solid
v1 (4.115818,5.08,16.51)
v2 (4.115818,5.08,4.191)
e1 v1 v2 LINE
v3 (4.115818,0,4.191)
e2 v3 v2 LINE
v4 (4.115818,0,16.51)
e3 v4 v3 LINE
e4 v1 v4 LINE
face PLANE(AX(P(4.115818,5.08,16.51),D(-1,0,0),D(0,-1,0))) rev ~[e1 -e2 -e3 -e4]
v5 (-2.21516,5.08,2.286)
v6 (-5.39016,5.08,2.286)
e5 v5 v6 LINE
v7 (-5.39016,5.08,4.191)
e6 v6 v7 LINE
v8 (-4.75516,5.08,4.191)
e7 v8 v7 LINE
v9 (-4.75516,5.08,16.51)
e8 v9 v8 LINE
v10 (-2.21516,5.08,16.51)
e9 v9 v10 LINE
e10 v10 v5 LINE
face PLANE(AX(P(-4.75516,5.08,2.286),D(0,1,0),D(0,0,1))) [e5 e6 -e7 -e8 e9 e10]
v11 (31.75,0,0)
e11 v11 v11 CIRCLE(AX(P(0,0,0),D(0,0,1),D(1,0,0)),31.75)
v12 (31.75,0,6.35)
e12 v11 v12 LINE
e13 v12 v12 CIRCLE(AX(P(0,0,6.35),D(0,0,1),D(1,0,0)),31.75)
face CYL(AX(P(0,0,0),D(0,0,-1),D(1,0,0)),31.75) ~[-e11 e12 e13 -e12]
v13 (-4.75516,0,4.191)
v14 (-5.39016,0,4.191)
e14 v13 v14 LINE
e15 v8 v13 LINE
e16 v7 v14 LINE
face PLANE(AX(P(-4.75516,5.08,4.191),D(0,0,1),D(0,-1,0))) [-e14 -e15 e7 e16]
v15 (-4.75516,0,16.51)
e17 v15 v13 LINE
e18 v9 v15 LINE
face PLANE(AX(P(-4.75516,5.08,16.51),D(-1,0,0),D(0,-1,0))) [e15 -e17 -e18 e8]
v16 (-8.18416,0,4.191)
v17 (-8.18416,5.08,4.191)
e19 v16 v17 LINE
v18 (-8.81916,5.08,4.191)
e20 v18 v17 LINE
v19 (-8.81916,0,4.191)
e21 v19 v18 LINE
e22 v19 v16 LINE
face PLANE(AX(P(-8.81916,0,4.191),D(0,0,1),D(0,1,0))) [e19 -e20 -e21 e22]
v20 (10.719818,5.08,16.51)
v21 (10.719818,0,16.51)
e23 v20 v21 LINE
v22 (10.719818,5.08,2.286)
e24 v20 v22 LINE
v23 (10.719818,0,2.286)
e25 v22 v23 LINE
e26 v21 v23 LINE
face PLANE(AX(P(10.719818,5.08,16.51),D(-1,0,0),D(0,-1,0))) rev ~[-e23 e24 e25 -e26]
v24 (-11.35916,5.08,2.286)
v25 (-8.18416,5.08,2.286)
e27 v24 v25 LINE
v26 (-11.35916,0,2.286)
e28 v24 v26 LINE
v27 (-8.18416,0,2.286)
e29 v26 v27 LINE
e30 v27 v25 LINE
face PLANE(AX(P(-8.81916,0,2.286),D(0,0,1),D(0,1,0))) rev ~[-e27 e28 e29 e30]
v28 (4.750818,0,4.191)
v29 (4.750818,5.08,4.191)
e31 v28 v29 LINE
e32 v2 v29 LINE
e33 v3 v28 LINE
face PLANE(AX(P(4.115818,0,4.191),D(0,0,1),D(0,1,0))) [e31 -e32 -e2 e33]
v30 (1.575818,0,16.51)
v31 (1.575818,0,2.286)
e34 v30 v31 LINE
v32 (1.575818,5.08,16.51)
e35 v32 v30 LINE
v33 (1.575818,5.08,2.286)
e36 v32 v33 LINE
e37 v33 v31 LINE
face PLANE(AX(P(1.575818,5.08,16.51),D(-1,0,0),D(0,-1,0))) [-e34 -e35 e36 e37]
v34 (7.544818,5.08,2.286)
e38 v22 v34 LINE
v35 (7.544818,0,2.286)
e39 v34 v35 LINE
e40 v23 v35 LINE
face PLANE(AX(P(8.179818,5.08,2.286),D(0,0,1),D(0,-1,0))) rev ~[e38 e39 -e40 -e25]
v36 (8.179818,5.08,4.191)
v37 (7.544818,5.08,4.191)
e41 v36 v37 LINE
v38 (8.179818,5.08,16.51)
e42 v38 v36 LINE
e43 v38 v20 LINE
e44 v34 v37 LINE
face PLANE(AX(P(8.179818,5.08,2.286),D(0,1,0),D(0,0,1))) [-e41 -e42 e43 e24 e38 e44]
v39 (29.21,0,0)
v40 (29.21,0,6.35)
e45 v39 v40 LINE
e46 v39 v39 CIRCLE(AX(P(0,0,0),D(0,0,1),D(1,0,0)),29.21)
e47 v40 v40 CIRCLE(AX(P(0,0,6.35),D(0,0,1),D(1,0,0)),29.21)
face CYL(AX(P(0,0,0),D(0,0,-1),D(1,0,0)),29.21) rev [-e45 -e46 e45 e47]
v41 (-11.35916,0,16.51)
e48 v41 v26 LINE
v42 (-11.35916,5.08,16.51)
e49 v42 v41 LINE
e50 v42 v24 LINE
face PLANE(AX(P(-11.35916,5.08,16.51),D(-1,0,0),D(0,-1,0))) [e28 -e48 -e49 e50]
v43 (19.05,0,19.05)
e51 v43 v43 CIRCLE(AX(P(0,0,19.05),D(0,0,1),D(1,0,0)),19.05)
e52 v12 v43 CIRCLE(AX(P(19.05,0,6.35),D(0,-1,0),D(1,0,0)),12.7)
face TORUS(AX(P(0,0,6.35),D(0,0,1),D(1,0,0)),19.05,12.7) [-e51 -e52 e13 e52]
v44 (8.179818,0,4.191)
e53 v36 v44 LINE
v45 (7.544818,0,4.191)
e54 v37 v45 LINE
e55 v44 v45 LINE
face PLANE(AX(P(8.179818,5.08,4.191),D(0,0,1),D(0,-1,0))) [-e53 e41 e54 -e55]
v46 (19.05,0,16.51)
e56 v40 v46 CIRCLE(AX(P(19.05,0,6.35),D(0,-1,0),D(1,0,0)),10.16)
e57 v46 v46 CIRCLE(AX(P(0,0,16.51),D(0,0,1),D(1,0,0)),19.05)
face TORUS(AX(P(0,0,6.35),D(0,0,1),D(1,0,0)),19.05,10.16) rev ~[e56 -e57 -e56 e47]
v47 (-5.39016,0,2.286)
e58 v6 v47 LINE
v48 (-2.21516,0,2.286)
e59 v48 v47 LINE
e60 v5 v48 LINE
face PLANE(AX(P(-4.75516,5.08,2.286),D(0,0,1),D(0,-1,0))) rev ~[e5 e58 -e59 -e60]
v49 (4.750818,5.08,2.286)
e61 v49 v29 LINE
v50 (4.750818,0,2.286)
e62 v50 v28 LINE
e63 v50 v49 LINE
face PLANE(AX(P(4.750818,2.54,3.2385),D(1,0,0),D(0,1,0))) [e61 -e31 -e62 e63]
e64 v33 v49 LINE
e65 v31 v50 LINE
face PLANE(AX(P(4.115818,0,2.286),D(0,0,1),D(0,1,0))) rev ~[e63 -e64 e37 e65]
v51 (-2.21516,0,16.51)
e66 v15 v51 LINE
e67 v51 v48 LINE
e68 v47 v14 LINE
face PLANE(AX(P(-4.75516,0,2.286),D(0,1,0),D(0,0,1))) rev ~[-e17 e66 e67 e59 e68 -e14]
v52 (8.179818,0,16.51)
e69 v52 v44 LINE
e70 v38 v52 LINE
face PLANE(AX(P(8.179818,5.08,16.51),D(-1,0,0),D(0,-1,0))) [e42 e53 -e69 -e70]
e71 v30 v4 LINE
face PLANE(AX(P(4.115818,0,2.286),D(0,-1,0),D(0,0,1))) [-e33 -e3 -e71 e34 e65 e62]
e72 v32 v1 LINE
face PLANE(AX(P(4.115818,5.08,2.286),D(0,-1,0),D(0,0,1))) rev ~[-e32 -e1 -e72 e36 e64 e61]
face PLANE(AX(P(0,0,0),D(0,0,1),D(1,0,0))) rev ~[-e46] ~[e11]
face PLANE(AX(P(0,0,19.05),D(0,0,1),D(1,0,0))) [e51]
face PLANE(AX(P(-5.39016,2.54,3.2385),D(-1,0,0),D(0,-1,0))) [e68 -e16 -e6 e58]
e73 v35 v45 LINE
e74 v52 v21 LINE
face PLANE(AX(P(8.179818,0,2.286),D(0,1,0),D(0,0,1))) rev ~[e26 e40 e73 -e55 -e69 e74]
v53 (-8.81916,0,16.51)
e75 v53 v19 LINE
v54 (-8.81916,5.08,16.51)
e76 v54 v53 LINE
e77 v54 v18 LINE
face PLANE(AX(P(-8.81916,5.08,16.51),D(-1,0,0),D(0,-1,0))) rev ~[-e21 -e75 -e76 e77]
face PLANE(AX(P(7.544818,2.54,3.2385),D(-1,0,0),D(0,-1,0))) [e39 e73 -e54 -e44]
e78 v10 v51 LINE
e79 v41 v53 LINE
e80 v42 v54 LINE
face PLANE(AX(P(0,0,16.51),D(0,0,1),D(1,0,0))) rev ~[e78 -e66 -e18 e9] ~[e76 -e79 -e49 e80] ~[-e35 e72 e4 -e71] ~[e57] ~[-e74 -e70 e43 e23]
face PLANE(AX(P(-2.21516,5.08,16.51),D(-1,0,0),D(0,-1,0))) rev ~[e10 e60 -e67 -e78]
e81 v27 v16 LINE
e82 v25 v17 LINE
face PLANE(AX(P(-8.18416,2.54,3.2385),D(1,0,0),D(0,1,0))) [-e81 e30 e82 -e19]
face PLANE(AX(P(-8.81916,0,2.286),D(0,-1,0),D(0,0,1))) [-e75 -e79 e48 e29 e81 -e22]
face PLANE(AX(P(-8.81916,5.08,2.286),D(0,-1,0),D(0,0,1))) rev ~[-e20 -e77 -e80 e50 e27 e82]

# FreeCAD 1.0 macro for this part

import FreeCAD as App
import Part
import Sketcher

V = App.Vector
Q = App.Units.Quantity


def edges_at(feature, points):
    """Names of the edges that pass closest to the given points."""
    edges = feature.Shape.Edges
    near = lambda p: min(range(len(edges)), key=lambda i: edges[i].distToShape(Part.Vertex(*p))[0])
    return sorted({f"Edge{near(p) + 1}" for p in points})


def faces_at(feature, points):
    """Names of the faces that lie closest to the given points."""
    faces = feature.Shape.Faces
    near = lambda p: min(range(len(faces)), key=lambda i: faces[i].distToShape(Part.Vertex(*p))[0])
    return sorted({f"Face{near(p) + 1}" for p in points})


def add_polygon(sketch, points):
    """Adds a closed chain of lines whose ends are joined by coincident constraints."""
    first, n = sketch.GeometryCount, len(points)
    for a, b in zip(points, points[1:] + points[:1]):
        sketch.addGeometry(Part.LineSegment(App.Vector(*a, 0), App.Vector(*b, 0)), False)
    for i in range(n):
        sketch.addConstraint(Sketcher.Constraint("Coincident", first + i, 2, first + (i + 1) % n, 1))

doc = App.newDocument("Part")
body = doc.addObject("PartDesign::Body", "Body")

# Sketch on XY plane
sketch1 = body.newObject("Sketcher::SketchObject", "Sketch")
sketch1.AttachmentSupport = (doc.getObject("XY_Plane"), [""])
sketch1.MapMode = "FlatFace"
sketch1.addGeometry(Part.Circle(V(0, 0, 0), V(0, 0, 1), 31.75), False)
sketch1.addConstraint([
    Sketcher.Constraint("Coincident", 0, 3, -1, 1),
    Sketcher.Constraint("Diameter", 0, Q("2.5 in")),
])
pad1 = body.newObject("PartDesign::Pad", "Pad")
pad1.Profile = sketch1
pad1.Length = Q("0.75 in")
doc.recompute()

fillet = body.newObject("PartDesign::Fillet", "Fillet")
fillet.Base = (pad1, edges_at(pad1, [(-31.75, 0, 19.05)]))
fillet.Radius = Q("0.5 in")
doc.recompute()

thickness = body.newObject("PartDesign::Thickness", "Thickness")
thickness.Base = (fillet, faces_at(fillet, [(0, 0, 0)]))
thickness.Value = Q("0.1 in")
thickness.Reversed = True
thickness.Join = "Arc"

# Sketch on XY plane
sketch2 = body.newObject("Sketcher::SketchObject", "Sketch001")
sketch2.AttachmentSupport = (doc.getObject("XY_Plane"), [""])
sketch2.MapMode = "FlatFace"
sketch2.AttachmentOffset = App.Placement(V(0, 0, 0.65 * 25.4), App.Rotation())
add_polygon(sketch2, [(8.179818, 0), (8.179818, 5.08), (10.719818, 5.08), (10.719818, 0)])  # lines 0-3
add_polygon(sketch2, [(1.575818, 0), (1.575818, 5.08), (4.115818, 5.08), (4.115818, 0)])  # lines 4-7
add_polygon(sketch2, [(-4.75516, 0), (-4.75516, 5.08), (-2.21516, 5.08), (-2.21516, 0)])  # lines 8-11
add_polygon(sketch2, [(-11.35916, 0), (-11.35916, 5.08), (-8.81916, 5.08), (-8.81916, 0)])  # lines 12-15
sketch2.addConstraint([
    Sketcher.Constraint("Vertical", 0),
    Sketcher.Constraint("Horizontal", 1),
    Sketcher.Constraint("Vertical", 2),
    Sketcher.Constraint("Horizontal", 3),
    Sketcher.Constraint("Vertical", 4),
    Sketcher.Constraint("Horizontal", 5),
    Sketcher.Constraint("Vertical", 6),
    Sketcher.Constraint("Horizontal", 7),
    Sketcher.Constraint("Vertical", 8),
    Sketcher.Constraint("Horizontal", 9),
    Sketcher.Constraint("Vertical", 10),
    Sketcher.Constraint("Horizontal", 11),
    Sketcher.Constraint("Vertical", 12),
    Sketcher.Constraint("Horizontal", 13),
    Sketcher.Constraint("Vertical", 14),
    Sketcher.Constraint("Horizontal", 15),
    Sketcher.Constraint("PointOnObject", 2, 2, -1),
    Sketcher.Constraint("PointOnObject", 6, 2, -1),
    Sketcher.Constraint("PointOnObject", 10, 2, -1),
    Sketcher.Constraint("PointOnObject", 14, 2, -1),
    Sketcher.Constraint("Horizontal", 1, 2, 4, 2),
    Sketcher.Constraint("Horizontal", 5, 2, 8, 2),
    Sketcher.Constraint("Horizontal", 9, 2, 12, 2),
    Sketcher.Constraint("Equal", 3, 5),
    Sketcher.Constraint("Equal", 7, 9),
    Sketcher.Constraint("Equal", 11, 13),
    Sketcher.Constraint("DistanceX", 1, 1, 1, 2, Q("0.1 in")),
    Sketcher.Constraint("DistanceY", 0, 1, 0, 2, Q("0.2 in")),
    Sketcher.Constraint("DistanceX", 4, 2, 0, 2, Q("0.26 in")),
    Sketcher.Constraint("DistanceX", 12, 2, 8, 2, Q("0.26 in")),
    Sketcher.Constraint("DistanceX", 8, 2, -1, 1, Q("4.75516 mm")),
    Sketcher.Constraint("DistanceX", 8, 2, 5, 2, Q("8.870978 mm")),
])
pad2 = body.newObject("PartDesign::Pad", "Pad001")
pad2.Profile = sketch2
pad2.Length = Q("0.56 in")
pad2.Reversed = True

# Sketch on YZ plane
sketch3 = body.newObject("Sketcher::SketchObject", "Sketch002")
sketch3.AttachmentSupport = (doc.getObject("YZ_Plane"), [""])
sketch3.MapMode = "FlatFace"
sketch3.AttachmentOffset = App.Placement(V(0, 0, -4.75516), App.Rotation())
add_polygon(sketch3, [(5.08, 4.191), (5.08, 2.286), (0, 2.286), (0, 4.191)])  # lines 0-3
sketch3.addConstraint([
    Sketcher.Constraint("Vertical", 0),
    Sketcher.Constraint("Horizontal", 1),
    Sketcher.Constraint("Vertical", 2),
    Sketcher.Constraint("Horizontal", 3),
    Sketcher.Constraint("PointOnObject", 1, 2, -2),
    Sketcher.Constraint("DistanceX", 1, 2, 1, 1, Q("0.2 in")),
    Sketcher.Constraint("DistanceY", 0, 2, 0, 1, Q("0.075 in")),
    Sketcher.Constraint("DistanceY", -1, 1, 0, 2, Q("0.09 in")),
])
pad3 = body.newObject("PartDesign::Pad", "Pad002")
pad3.Profile = sketch3
pad3.Length = Q("0.025 in")
pad3.Reversed = True

# Sketch on YZ plane
sketch4 = body.newObject("Sketcher::SketchObject", "Sketch003")
sketch4.AttachmentSupport = (doc.getObject("YZ_Plane"), [""])
sketch4.MapMode = "FlatFace"
sketch4.AttachmentOffset = App.Placement(V(0, 0, 4.115818), App.Rotation())
add_polygon(sketch4, [(0, 4.191), (0, 2.286), (5.08, 2.286), (5.08, 4.191)])  # lines 0-3
sketch4.addConstraint([
    Sketcher.Constraint("Vertical", 0),
    Sketcher.Constraint("Horizontal", 1),
    Sketcher.Constraint("Vertical", 2),
    Sketcher.Constraint("Horizontal", 3),
    Sketcher.Constraint("PointOnObject", 0, 2, -2),
    Sketcher.Constraint("DistanceX", 1, 1, 1, 2, Q("0.2 in")),
    Sketcher.Constraint("DistanceY", 0, 2, 0, 1, Q("0.075 in")),
    Sketcher.Constraint("DistanceY", -1, 1, 0, 2, Q("0.09 in")),
])
pad4 = body.newObject("PartDesign::Pad", "Pad003")
pad4.Profile = sketch4
pad4.Length = Q("0.025 in")

# Sketch on YZ plane
sketch5 = body.newObject("Sketcher::SketchObject", "Sketch004")
sketch5.AttachmentSupport = (doc.getObject("YZ_Plane"), [""])
sketch5.MapMode = "FlatFace"
sketch5.AttachmentOffset = App.Placement(V(0, 0, 8.179818), App.Rotation())
add_polygon(sketch5, [(5.08, 4.191), (5.08, 2.286), (0, 2.286), (0, 4.191)])  # lines 0-3
sketch5.addConstraint([
    Sketcher.Constraint("Vertical", 0),
    Sketcher.Constraint("Horizontal", 1),
    Sketcher.Constraint("Vertical", 2),
    Sketcher.Constraint("Horizontal", 3),
    Sketcher.Constraint("PointOnObject", 1, 2, -2),
    Sketcher.Constraint("DistanceX", 1, 2, 1, 1, Q("0.2 in")),
    Sketcher.Constraint("DistanceY", 0, 2, 0, 1, Q("0.075 in")),
    Sketcher.Constraint("DistanceY", -1, 1, 0, 2, Q("0.09 in")),
])
pad5 = body.newObject("PartDesign::Pad", "Pad004")
pad5.Profile = sketch5
pad5.Length = Q("0.025 in")
pad5.Reversed = True

# Sketch on YZ plane
sketch6 = body.newObject("Sketcher::SketchObject", "Sketch005")
sketch6.AttachmentSupport = (doc.getObject("YZ_Plane"), [""])
sketch6.MapMode = "FlatFace"
sketch6.AttachmentOffset = App.Placement(V(0, 0, -8.81916), App.Rotation())
add_polygon(sketch6, [(0, 4.191), (0, 2.286), (5.08, 2.286), (5.08, 4.191)])  # lines 0-3
sketch6.addConstraint([
    Sketcher.Constraint("Vertical", 0),
    Sketcher.Constraint("Horizontal", 1),
    Sketcher.Constraint("Vertical", 2),
    Sketcher.Constraint("Horizontal", 3),
    Sketcher.Constraint("PointOnObject", 0, 2, -2),
    Sketcher.Constraint("DistanceX", 1, 1, 1, 2, Q("0.2 in")),
    Sketcher.Constraint("DistanceY", 0, 2, 0, 1, Q("0.075 in")),
    Sketcher.Constraint("DistanceY", -1, 1, 0, 2, Q("0.09 in")),
])
pad6 = body.newObject("PartDesign::Pad", "Pad005")
pad6.Profile = sketch6
pad6.Length = Q("0.025 in")

doc.recompute()
